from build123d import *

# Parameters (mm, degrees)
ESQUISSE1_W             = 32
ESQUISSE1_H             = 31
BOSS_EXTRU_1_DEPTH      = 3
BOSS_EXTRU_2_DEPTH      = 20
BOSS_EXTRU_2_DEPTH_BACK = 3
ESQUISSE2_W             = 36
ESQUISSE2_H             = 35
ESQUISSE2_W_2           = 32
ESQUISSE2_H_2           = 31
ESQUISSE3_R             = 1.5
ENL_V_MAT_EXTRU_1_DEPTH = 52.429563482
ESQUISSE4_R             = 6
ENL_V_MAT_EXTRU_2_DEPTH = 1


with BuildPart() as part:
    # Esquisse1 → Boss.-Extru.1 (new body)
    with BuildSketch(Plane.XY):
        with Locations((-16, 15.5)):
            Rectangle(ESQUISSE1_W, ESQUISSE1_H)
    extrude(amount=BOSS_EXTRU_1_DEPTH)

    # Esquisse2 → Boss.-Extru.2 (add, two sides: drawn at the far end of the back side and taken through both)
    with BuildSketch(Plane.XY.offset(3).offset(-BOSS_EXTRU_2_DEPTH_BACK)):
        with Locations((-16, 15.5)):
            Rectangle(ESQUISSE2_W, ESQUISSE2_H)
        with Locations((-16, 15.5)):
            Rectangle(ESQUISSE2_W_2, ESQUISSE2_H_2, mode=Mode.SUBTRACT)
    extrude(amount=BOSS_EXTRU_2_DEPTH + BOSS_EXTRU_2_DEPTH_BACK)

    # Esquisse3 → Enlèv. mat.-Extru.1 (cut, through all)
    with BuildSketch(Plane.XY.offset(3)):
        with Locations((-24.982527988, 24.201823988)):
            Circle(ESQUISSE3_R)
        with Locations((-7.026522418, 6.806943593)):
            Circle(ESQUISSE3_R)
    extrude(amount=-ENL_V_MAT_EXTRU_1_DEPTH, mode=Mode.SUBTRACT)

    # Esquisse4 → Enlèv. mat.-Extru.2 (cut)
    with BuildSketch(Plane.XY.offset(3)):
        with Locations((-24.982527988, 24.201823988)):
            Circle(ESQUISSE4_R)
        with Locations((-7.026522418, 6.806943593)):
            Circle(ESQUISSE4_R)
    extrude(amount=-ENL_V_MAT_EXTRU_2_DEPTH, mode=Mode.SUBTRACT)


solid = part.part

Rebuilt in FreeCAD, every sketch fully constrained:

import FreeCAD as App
import Part
import Sketcher


def add_polygon(sketch, points):
    """Adds a closed chain of lines whose ends are joined by coincident constraints."""
    first, n = sketch.GeometryCount, len(points)
    for a, b in zip(points, points[1:] + points[:1]):
        sketch.addGeometry(Part.LineSegment(App.Vector(*a, 0), App.Vector(*b, 0)), False)
    for i in range(n):
        sketch.addConstraint(Sketcher.Constraint("Coincident", first + i, 2, first + (i + 1) % n, 1))

doc = App.newDocument("Part")
body = doc.addObject("PartDesign::Body", "Body")

# Sketch on XY plane
sketch1 = body.newObject("Sketcher::SketchObject", "Sketch")
sketch1.AttachmentSupport = (doc.getObject("XY_Plane"), [""])
sketch1.MapMode = "FlatFace"
add_polygon(sketch1, [(-32, 31), (-32, 0), (0, 0), (0, 31)])  # lines 0-3
sketch1.addConstraint(Sketcher.Constraint("Vertical", 0))
sketch1.addConstraint(Sketcher.Constraint("Horizontal", 1))
sketch1.addConstraint(Sketcher.Constraint("Vertical", 2))
sketch1.addConstraint(Sketcher.Constraint("Horizontal", 3))
sketch1.addConstraint(Sketcher.Constraint("Coincident", 1, 2, -1, 1))
sketch1.addConstraint(Sketcher.Constraint("DistanceX", 1, 1, 1, 2, 32.0))
sketch1.addConstraint(Sketcher.Constraint("DistanceY", 0, 2, 0, 1, 31.0))
pad1 = body.newObject("PartDesign::Pad", "Pad")
pad1.Profile = sketch1
pad1.Length = 3

# Sketch on XY plane
sketch2 = body.newObject("Sketcher::SketchObject", "Sketch001")
sketch2.AttachmentSupport = (doc.getObject("XY_Plane"), [""])
sketch2.MapMode = "FlatFace"
sketch2.AttachmentOffset = App.Placement(App.Vector(0, 0, 3), App.Rotation())
add_polygon(sketch2, [(-34, 33), (-34, -2), (2, -2), (2, 33)])  # lines 0-3
add_polygon(sketch2, [(0, 0), (-32, 0), (-32, 31), (0, 31)])  # lines 4-7
sketch2.addConstraint(Sketcher.Constraint("Vertical", 0))
sketch2.addConstraint(Sketcher.Constraint("Horizontal", 1))
sketch2.addConstraint(Sketcher.Constraint("Vertical", 2))
sketch2.addConstraint(Sketcher.Constraint("Horizontal", 3))
sketch2.addConstraint(Sketcher.Constraint("Horizontal", 4))
sketch2.addConstraint(Sketcher.Constraint("Vertical", 5))
sketch2.addConstraint(Sketcher.Constraint("Horizontal", 6))
sketch2.addConstraint(Sketcher.Constraint("Vertical", 7))
sketch2.addConstraint(Sketcher.Constraint("Coincident", 7, 2, -1, 1))
sketch2.addConstraint(Sketcher.Constraint("DistanceX", 1, 1, 1, 2, 36.0))
sketch2.addConstraint(Sketcher.Constraint("DistanceX", 4, 2, 4, 1, 32.0))
sketch2.addConstraint(Sketcher.Constraint("DistanceY", 0, 2, 0, 1, 35.0))
sketch2.addConstraint(Sketcher.Constraint("DistanceY", 5, 1, 5, 2, 31.0))
sketch2.addConstraint(Sketcher.Constraint("DistanceX", 0, 2, -1, 1, 34.0))
sketch2.addConstraint(Sketcher.Constraint("DistanceY", 0, 2, -1, 1, 2.0))
pad2 = body.newObject("PartDesign::Pad", "Pad001")
pad2.Profile = sketch2
pad2.Type = "TwoLengths"
pad2.Length = 20
pad2.Length2 = 3

# Sketch on XY plane
sketch3 = body.newObject("Sketcher::SketchObject", "Sketch002")
sketch3.AttachmentSupport = (doc.getObject("XY_Plane"), [""])
sketch3.MapMode = "FlatFace"
sketch3.AttachmentOffset = App.Placement(App.Vector(0, 0, 3), App.Rotation())
sketch3.addGeometry(Part.Circle(App.Vector(-25, 24.2, 0), App.Vector(0, 0, 1), 1.5), False)
sketch3.addGeometry(Part.Circle(App.Vector(-7, 6.8, 0), App.Vector(0, 0, 1), 1.5), False)
sketch3.addConstraint(Sketcher.Constraint("Equal", 0, 1))
sketch3.addConstraint(Sketcher.Constraint("Diameter", 0, 3.0))
sketch3.addConstraint(Sketcher.Constraint("DistanceY", 1, 3, 0, 3, 17.39488))
sketch3.addConstraint(Sketcher.Constraint("DistanceX", 0, 3, -1, 1, 24.982528))
sketch3.addConstraint(Sketcher.Constraint("DistanceY", -1, 1, 0, 3, 24.201824))
sketch3.addConstraint(Sketcher.Constraint("DistanceX", 1, 3, -1, 1, 7.026522))
pocket1 = body.newObject("PartDesign::Pocket", "Pocket")
pocket1.Profile = sketch3
pocket1.Type = "ThroughAll"

# Sketch on XY plane
sketch4 = body.newObject("Sketcher::SketchObject", "Sketch003")
sketch4.AttachmentSupport = (doc.getObject("XY_Plane"), [""])
sketch4.MapMode = "FlatFace"
sketch4.AttachmentOffset = App.Placement(App.Vector(0, 0, 3), App.Rotation())
sketch4.addGeometry(Part.Circle(App.Vector(-25, 24, 0), App.Vector(0, 0, 1), 6), False)
sketch4.addGeometry(Part.Circle(App.Vector(-7, 7, 0), App.Vector(0, 0, 1), 6), False)
sketch4.addConstraint(Sketcher.Constraint("Equal", 0, 1))
sketch4.addConstraint(Sketcher.Constraint("Diameter", 0, 12.0))
sketch4.addConstraint(Sketcher.Constraint("DistanceY", 1, 3, 0, 3, 17.39488))
sketch4.addConstraint(Sketcher.Constraint("DistanceX", 0, 3, -1, 1, 24.982528))
sketch4.addConstraint(Sketcher.Constraint("DistanceY", -1, 1, 0, 3, 24.201824))
sketch4.addConstraint(Sketcher.Constraint("DistanceX", 1, 3, -1, 1, 7.026522))
pocket2 = body.newObject("PartDesign::Pocket", "Pocket001")
pocket2.Profile = sketch4
pocket2.Length = 1

doc.recompute()
